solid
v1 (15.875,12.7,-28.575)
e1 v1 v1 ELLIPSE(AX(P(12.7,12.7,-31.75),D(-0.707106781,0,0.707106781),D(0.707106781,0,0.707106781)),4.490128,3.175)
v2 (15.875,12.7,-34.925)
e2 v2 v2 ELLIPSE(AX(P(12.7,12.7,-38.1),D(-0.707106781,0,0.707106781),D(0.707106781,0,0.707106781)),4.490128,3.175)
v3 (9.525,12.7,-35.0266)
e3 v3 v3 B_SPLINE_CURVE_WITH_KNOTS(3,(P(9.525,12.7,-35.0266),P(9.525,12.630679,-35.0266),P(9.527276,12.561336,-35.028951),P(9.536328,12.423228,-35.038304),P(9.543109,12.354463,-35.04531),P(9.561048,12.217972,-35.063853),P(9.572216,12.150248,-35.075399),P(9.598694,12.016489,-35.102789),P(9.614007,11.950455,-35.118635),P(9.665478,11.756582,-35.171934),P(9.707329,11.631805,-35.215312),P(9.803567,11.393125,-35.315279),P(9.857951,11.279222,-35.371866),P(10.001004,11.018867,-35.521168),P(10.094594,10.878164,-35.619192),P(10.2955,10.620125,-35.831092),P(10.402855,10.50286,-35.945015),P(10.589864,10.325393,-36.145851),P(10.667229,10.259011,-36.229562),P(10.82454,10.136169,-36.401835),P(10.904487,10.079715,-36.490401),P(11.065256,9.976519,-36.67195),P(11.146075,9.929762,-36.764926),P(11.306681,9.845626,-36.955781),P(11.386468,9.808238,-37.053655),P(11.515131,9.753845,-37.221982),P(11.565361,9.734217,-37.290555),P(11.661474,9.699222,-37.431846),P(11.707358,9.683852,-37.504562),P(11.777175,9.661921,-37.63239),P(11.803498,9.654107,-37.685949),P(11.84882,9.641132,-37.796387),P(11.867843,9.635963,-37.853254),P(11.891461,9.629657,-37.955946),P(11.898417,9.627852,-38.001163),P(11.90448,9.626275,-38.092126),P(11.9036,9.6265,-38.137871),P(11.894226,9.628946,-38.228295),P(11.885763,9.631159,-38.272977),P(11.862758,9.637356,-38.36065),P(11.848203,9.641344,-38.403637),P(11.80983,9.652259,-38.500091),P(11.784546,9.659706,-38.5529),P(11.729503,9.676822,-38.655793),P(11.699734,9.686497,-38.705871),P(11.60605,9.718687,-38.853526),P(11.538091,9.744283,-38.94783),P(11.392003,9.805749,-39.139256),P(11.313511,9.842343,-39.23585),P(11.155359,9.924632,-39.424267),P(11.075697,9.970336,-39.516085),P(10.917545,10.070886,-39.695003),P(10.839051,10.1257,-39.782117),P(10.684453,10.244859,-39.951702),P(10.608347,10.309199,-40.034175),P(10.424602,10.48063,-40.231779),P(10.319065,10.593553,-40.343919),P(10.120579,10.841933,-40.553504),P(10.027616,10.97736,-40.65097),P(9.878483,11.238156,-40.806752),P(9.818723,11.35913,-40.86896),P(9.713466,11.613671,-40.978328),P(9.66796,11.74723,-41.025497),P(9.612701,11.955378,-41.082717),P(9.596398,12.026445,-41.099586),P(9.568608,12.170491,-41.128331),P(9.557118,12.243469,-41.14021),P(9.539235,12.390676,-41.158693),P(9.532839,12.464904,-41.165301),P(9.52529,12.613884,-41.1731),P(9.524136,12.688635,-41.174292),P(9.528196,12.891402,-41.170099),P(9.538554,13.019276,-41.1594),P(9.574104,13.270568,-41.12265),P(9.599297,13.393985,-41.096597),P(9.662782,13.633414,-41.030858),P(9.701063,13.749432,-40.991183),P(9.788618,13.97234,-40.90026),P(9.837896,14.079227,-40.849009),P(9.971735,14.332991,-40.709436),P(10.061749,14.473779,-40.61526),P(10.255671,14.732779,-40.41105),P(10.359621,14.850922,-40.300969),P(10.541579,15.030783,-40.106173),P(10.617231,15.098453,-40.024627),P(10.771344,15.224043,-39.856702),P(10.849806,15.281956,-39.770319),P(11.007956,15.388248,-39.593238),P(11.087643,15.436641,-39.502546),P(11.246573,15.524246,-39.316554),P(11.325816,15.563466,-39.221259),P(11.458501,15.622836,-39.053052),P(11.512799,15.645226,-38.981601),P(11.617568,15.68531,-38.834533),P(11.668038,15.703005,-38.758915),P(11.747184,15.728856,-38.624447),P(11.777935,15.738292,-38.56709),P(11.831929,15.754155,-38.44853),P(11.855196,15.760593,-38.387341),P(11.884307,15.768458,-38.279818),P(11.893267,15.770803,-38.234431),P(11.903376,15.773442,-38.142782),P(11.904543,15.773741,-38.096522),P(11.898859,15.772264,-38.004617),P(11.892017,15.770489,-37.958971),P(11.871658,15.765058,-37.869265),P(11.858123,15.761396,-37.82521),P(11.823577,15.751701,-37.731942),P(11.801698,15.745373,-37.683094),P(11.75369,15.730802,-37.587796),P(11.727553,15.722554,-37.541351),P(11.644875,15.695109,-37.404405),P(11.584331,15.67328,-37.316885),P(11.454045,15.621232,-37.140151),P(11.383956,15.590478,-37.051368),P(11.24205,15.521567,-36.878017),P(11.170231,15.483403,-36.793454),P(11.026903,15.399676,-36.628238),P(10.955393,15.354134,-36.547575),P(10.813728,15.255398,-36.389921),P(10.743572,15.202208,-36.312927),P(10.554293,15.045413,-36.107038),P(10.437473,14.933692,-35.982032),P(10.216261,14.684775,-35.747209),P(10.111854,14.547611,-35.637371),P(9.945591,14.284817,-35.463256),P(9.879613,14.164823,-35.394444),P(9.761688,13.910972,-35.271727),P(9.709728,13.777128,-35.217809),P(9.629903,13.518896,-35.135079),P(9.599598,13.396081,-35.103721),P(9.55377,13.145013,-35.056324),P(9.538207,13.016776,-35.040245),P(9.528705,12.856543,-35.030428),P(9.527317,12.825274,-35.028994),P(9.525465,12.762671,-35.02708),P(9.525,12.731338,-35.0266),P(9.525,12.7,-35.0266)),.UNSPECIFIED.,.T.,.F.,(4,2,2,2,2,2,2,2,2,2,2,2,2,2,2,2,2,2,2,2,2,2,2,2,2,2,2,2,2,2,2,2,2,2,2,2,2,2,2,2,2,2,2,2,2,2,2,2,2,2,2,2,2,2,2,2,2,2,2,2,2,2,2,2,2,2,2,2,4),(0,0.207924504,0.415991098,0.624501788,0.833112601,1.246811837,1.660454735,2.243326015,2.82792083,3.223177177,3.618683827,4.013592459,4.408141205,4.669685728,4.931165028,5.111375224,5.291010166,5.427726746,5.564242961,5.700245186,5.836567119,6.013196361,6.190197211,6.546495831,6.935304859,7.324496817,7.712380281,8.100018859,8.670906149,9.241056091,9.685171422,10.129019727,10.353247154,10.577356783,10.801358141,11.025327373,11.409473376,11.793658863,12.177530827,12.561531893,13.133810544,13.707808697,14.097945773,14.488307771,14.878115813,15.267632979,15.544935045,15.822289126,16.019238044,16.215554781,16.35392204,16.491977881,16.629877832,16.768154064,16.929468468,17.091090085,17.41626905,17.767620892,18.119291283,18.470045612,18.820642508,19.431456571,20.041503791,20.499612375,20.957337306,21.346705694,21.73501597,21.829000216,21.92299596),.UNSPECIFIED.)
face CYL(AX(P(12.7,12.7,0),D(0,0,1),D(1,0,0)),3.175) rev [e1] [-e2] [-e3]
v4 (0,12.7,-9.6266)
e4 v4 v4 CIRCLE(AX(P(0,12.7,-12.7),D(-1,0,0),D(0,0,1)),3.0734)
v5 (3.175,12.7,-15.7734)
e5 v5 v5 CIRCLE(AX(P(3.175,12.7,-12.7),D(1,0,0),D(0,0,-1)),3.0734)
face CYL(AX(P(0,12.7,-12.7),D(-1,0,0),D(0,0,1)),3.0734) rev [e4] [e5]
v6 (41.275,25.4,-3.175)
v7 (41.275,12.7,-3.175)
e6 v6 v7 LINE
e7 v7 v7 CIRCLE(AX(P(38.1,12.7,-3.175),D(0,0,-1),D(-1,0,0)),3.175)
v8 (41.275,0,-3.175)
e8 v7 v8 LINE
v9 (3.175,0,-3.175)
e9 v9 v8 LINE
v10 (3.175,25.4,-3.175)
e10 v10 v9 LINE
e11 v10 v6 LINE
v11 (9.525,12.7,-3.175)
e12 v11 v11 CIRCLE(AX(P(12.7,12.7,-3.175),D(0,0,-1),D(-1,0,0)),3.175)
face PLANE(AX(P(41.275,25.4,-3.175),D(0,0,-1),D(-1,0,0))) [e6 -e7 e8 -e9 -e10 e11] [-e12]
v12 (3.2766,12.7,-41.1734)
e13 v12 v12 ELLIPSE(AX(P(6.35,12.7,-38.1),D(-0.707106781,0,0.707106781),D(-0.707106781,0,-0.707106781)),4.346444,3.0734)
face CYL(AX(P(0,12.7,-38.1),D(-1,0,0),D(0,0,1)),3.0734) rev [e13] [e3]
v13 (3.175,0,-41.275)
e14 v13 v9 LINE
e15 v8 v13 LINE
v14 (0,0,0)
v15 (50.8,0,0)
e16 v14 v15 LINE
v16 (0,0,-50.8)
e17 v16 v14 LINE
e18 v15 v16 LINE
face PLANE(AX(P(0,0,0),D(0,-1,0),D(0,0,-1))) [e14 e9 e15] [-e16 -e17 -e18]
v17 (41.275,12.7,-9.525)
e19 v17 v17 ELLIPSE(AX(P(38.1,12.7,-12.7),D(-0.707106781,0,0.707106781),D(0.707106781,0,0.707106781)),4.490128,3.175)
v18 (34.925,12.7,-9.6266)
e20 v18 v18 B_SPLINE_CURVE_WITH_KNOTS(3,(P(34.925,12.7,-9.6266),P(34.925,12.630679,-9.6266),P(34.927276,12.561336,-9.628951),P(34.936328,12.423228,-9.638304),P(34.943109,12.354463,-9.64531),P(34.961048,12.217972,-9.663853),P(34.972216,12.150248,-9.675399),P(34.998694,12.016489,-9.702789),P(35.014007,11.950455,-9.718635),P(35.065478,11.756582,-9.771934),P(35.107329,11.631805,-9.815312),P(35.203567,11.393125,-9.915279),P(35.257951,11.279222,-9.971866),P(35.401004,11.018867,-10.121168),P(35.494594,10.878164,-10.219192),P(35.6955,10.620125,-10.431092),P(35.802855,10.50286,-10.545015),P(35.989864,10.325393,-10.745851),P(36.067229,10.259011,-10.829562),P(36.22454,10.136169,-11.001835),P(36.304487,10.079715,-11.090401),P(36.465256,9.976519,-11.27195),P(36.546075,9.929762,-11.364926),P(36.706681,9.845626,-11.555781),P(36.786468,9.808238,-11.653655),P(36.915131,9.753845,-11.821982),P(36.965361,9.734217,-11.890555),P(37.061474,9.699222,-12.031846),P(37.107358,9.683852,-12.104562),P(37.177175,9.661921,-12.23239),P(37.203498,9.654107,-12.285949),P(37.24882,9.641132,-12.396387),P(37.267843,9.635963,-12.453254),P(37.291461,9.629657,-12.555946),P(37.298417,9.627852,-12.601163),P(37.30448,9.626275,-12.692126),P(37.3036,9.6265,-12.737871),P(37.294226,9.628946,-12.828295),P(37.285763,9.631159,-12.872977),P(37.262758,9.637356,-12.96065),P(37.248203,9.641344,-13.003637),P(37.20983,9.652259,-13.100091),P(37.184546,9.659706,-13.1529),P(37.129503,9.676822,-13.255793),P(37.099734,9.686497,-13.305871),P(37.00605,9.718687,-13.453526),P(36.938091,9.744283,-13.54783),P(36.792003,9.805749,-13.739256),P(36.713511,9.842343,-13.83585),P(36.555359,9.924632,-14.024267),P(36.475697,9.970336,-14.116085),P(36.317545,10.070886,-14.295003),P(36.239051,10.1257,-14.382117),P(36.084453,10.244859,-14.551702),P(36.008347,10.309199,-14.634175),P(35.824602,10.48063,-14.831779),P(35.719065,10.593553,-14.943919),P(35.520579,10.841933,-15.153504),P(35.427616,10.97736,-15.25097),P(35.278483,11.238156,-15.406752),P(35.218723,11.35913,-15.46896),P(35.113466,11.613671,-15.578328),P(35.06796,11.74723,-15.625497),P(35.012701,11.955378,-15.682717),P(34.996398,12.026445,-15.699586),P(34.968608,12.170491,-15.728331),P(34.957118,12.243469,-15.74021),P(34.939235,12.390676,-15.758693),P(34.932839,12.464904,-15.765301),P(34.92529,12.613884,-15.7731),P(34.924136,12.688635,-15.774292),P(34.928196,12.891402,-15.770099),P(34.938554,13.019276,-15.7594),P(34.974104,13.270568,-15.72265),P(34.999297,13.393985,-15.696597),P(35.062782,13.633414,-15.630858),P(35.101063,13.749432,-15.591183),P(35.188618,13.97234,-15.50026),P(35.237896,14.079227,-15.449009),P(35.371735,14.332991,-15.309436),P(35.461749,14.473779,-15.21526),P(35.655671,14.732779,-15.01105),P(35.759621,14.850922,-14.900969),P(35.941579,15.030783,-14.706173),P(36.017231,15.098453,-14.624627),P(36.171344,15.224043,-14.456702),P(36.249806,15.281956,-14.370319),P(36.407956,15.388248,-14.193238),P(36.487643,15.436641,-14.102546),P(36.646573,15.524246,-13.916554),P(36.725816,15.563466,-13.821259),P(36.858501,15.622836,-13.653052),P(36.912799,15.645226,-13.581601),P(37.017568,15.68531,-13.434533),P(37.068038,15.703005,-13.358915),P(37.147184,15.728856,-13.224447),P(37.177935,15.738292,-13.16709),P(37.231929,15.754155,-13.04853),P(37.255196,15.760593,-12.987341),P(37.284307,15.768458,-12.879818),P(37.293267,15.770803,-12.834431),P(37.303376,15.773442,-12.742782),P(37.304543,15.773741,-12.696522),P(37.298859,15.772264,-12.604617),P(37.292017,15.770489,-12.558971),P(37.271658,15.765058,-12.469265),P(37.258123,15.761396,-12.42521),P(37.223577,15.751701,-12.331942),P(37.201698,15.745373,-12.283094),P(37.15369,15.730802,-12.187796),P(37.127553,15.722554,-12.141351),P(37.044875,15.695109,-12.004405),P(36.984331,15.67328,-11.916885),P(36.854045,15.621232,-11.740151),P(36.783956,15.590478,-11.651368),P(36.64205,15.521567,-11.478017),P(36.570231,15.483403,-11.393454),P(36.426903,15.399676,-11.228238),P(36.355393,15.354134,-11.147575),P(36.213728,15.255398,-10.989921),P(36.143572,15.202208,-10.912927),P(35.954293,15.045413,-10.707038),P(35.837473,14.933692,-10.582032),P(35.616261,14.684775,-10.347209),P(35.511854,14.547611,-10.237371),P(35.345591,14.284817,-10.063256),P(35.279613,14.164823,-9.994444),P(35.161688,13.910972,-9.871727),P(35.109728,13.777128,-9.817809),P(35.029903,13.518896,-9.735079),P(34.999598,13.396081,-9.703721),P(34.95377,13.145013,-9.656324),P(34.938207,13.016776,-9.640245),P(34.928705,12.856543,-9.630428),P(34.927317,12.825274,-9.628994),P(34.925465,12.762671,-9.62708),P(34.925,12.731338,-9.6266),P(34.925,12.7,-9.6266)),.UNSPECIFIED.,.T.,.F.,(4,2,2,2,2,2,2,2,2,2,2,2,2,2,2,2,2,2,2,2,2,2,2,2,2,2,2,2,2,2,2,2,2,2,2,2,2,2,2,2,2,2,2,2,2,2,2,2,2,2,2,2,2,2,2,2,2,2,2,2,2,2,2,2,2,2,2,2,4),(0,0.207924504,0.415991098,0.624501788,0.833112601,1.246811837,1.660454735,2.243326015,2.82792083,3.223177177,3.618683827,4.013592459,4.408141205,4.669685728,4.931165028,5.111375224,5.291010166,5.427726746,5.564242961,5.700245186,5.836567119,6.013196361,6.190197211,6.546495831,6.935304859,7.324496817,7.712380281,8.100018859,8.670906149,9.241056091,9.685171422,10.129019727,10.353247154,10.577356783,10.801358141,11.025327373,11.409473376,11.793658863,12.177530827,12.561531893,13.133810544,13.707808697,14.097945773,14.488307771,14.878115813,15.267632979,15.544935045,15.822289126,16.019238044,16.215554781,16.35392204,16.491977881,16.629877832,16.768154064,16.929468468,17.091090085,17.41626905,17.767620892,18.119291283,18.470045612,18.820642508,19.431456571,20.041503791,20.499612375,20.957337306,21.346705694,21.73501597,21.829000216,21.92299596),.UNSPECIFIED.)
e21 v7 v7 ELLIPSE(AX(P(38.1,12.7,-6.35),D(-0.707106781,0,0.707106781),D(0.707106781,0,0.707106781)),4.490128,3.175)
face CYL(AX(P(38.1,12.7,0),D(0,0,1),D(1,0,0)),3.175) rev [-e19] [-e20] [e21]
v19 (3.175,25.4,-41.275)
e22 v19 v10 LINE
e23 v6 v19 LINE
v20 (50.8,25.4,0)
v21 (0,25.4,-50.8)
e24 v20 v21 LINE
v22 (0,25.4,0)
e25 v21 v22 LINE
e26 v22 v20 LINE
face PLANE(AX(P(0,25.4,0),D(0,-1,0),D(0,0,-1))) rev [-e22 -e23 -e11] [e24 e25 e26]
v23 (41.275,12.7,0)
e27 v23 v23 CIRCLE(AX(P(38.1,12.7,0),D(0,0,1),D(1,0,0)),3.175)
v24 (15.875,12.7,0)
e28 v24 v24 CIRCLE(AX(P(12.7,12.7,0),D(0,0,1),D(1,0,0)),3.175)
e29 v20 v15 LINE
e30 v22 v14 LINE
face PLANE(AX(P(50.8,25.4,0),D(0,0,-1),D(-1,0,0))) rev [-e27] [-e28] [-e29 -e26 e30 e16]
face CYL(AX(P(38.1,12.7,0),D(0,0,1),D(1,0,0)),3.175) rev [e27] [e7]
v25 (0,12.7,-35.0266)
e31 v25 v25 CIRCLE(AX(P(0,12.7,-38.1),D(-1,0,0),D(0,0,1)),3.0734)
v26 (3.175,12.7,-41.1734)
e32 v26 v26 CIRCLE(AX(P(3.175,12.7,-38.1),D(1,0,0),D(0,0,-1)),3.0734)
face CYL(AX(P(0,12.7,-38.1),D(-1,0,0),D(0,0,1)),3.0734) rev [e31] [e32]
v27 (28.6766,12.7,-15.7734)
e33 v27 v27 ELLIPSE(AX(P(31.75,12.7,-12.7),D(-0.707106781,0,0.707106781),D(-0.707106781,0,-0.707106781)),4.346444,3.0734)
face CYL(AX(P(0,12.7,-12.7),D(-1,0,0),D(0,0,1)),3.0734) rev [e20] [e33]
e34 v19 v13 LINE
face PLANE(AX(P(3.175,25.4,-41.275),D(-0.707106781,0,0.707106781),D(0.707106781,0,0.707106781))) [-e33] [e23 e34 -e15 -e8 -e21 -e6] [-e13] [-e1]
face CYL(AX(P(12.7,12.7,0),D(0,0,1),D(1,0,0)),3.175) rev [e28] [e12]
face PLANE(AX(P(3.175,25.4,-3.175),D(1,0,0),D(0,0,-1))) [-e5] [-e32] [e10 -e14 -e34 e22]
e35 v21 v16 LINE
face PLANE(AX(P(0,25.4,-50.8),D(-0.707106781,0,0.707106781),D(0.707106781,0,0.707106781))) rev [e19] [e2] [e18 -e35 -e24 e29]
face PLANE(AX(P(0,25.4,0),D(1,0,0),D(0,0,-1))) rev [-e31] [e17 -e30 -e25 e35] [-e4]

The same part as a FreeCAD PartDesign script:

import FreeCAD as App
import Part
import Sketcher
Q = App.Units.Quantity


def add_polygon(sketch, points):
    """Adds a closed chain of lines whose ends are joined by coincident constraints."""
    first, n = sketch.GeometryCount, len(points)
    for a, b in zip(points, points[1:] + points[:1]):
        sketch.addGeometry(Part.LineSegment(App.Vector(*a, 0), App.Vector(*b, 0)), False)
    for i in range(n):
        sketch.addConstraint(Sketcher.Constraint("Coincident", first + i, 2, first + (i + 1) % n, 1))

doc = App.newDocument("Part")
body = doc.addObject("PartDesign::Body", "Body")

sketch1 = doc.addObject("Sketcher::SketchObject", "Sketch")
body.addObject(sketch1)
sketch1.AttachmentSupport = (doc.XZ_Plane, [""])
sketch1.MapMode = "FlatFace"
add_polygon(sketch1, [(0, -50.8), (0, 0), (50.8, 0)])
add_polygon(sketch1, [(3.175, -3.175), (3.175, -41.275), (41.275, -3.175)])
sketch1.addConstraint(Sketcher.Constraint("Vertical", 0))
sketch1.addConstraint(Sketcher.Constraint("Horizontal", 1))
sketch1.addConstraint(Sketcher.Constraint("Vertical", 3))
sketch1.addConstraint(Sketcher.Constraint("Horizontal", 5))
sketch1.addConstraint(Sketcher.Constraint("Coincident", 0, 2, -1, 1))
sketch1.addConstraint(Sketcher.Constraint("Parallel", 2, 4))
sketch1.addConstraint(Sketcher.Constraint("Equal", 1, 0))
sketch1.addConstraint(Sketcher.Constraint("DistanceX", 1, 1, 1, 2, Q("2 in")))
sketch1.addConstraint(Sketcher.Constraint("DistanceX", 5, 2, 5, 1, Q("1.5 in")))
sketch1.addConstraint(Sketcher.Constraint("DistanceX", -1, 1, 3, 2, Q("0.125 in")))
sketch1.addConstraint(Sketcher.Constraint("DistanceY", 3, 2, -1, 1, Q("1.625 in")))
pad1 = doc.addObject("PartDesign::Pad", "Pad")
body.addObject(pad1)
pad1.Profile = sketch1
pad1.Length = Q("1 in")
pad1.Reversed = True

sketch2 = doc.addObject("Sketcher::SketchObject", "Sketch001")
body.addObject(sketch2)
sketch2.AttachmentSupport = (doc.YZ_Plane, [""])
sketch2.MapMode = "FlatFace"
sketch2.addGeometry(Part.Circle(App.Vector(12.7, -12.7, 0), App.Vector(0, 0, 1), 3.0734), False)
sketch2.addGeometry(Part.Circle(App.Vector(12.7, -38.1, 0), App.Vector(0, 0, 1), 3.0734), False)
sketch2.addConstraint(Sketcher.Constraint("Equal", 0, 1))
sketch2.addConstraint(Sketcher.Constraint("Vertical", 0, 3, 1, 3))
sketch2.addConstraint(Sketcher.Constraint("Diameter", 0, Q("0.242 in")))
sketch2.addConstraint(Sketcher.Constraint("DistanceY", 1, 3, 0, 3, Q("1 in")))
sketch2.addConstraint(Sketcher.Constraint("DistanceX", -1, 1, 0, 3, Q("0.5 in")))
sketch2.addConstraint(Sketcher.Constraint("DistanceY", 0, 3, -1, 1, Q("0.5 in")))
doc.recompute()
hole = doc.addObject("PartDesign::Hole", "Hole")
body.addObject(hole)
hole.Profile = sketch2
hole.ThreadType = "None"
hole.Diameter = Q("0.242 in")
hole.DepthType = "ThroughAll"
hole.Reversed = True

sketch3 = doc.addObject("Sketcher::SketchObject", "Sketch002")
body.addObject(sketch3)
sketch3.AttachmentSupport = (doc.XY_Plane, [""])
sketch3.MapMode = "FlatFace"
sketch3.addGeometry(Part.Circle(App.Vector(38.1, 12.7, 0), App.Vector(0, 0, 1), 3.175), False)
sketch3.addGeometry(Part.Circle(App.Vector(12.7, 12.7, 0), App.Vector(0, 0, 1), 3.175), False)
sketch3.addConstraint(Sketcher.Constraint("Equal", 0, 1))
sketch3.addConstraint(Sketcher.Constraint("Horizontal", 0, 3, 1, 3))
sketch3.addConstraint(Sketcher.Constraint("Diameter", 0, Q("0.25 in")))
sketch3.addConstraint(Sketcher.Constraint("DistanceX", 1, 3, 0, 3, Q("1 in")))
sketch3.addConstraint(Sketcher.Constraint("DistanceX", -1, 1, 0, 3, Q("1.5 in")))
sketch3.addConstraint(Sketcher.Constraint("DistanceY", -1, 1, 0, 3, Q("0.5 in")))
doc.recompute()
hole2 = doc.addObject("PartDesign::Hole", "Hole001")
body.addObject(hole2)
hole2.Profile = sketch3
hole2.ThreadType = "None"
hole2.Diameter = Q("0.25 in")
hole2.DepthType = "ThroughAll"

doc.recompute()
